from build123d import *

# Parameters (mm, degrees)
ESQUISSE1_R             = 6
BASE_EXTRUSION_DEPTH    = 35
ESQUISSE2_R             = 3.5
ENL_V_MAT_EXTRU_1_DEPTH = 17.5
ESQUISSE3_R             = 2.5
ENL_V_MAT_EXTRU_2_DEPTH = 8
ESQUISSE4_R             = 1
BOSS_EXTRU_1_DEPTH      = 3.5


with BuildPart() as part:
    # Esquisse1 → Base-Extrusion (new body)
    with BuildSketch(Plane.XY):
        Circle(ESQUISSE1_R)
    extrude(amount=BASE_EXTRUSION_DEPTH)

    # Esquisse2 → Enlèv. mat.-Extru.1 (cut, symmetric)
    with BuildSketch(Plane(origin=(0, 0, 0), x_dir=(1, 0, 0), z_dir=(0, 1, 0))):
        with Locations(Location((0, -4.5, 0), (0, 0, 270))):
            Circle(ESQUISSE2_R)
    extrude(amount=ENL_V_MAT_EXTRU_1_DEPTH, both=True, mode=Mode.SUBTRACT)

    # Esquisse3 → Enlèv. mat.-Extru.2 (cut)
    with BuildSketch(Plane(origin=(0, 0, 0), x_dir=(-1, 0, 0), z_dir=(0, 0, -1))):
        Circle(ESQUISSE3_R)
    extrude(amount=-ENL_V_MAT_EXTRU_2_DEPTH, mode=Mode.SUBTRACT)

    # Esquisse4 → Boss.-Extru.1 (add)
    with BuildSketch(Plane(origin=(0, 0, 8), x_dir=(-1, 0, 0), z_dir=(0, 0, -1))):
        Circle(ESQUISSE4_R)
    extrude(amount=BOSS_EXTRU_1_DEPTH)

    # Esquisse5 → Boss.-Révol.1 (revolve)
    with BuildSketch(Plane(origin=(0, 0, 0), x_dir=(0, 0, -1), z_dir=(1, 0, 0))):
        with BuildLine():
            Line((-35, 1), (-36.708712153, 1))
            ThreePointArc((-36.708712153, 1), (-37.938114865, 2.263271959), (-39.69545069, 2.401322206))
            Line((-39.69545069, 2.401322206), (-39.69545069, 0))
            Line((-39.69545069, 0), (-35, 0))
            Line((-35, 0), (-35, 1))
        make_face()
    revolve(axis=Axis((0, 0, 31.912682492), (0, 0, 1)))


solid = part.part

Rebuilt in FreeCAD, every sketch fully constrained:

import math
import FreeCAD as App
import Part
import Sketcher

doc = App.newDocument("Part")
params = doc.addObject("Spreadsheet::Sheet", "Params")
for row, (alias, value) in enumerate([
    ("sketch1_diameter", "12 mm"),
    ("pad1_length", "35 mm"),
    ("sketch2_diameter", "7 mm"),
    ("pocket1_length", "35 mm"),
    ("sketch3_diameter", "5 mm"),
    ("pocket2_length", "8 mm"),
    ("sketch4_diameter", "2 mm"),
    ("pad2_length", "3.5 mm"),
    ("sketch5_radius", "2.5 mm"),
    ("sketch5_width", "1 mm"),
    ("revolution_angle", "360 deg"),
], start=1):
    params.set(f"A{row}", alias)
    params.set(f"B{row}", "=" + value)
    params.setAlias(f"B{row}", alias)

body = doc.addObject("PartDesign::Body", "Body")

sketch1 = body.newObject("Sketcher::SketchObject", "Sketch")
sketch1.AttachmentSupport = (doc.getObject("XY_Plane"), [""])
sketch1.MapMode = "FlatFace"
sketch1.addGeometry(Part.Circle(App.Vector(0, 0, 0), App.Vector(0, 0, 1), 6), False)
sketch1.addConstraint(Sketcher.Constraint("Coincident", 0, 3, -1, 1))
sketch1.addConstraint(Sketcher.Constraint("Diameter", 0, 12.0))
sketch1.setExpression("Constraints[1]", "Params.sketch1_diameter")
pad1 = body.newObject("PartDesign::Pad", "Pad")
pad1.Profile = sketch1
pad1.setExpression("Length", "Params.pad1_length")

sketch2 = body.newObject("Sketcher::SketchObject", "Sketch001")
sketch2.AttachmentSupport = (doc.getObject("XZ_Plane"), [""])
sketch2.MapMode = "FlatFace"
sketch2.addGeometry(Part.Circle(App.Vector(0, 4.5, 0), App.Vector(0, 0, 1), 3.5), False)
sketch2.addConstraint(Sketcher.Constraint("PointOnObject", 0, 3, -2))
sketch2.addConstraint(Sketcher.Constraint("Diameter", 0, 7.0))
sketch2.addConstraint(Sketcher.Constraint("DistanceY", -1, 1, 0, 3, 4.5))
sketch2.setExpression("Constraints[1]", "Params.sketch2_diameter")
pocket1 = body.newObject("PartDesign::Pocket", "Pocket")
pocket1.Profile = sketch2
pocket1.setExpression("Length", "Params.pocket1_length")
pocket1.Midplane = True

sketch3 = body.newObject("Sketcher::SketchObject", "Sketch002")
sketch3.AttachmentSupport = (doc.getObject("XY_Plane"), [""])
sketch3.MapMode = "FlatFace"
sketch3.addGeometry(Part.Circle(App.Vector(0, 0, 0), App.Vector(0, 0, 1), 2.5), False)
sketch3.addConstraint(Sketcher.Constraint("Coincident", 0, 3, -1, 1))
sketch3.addConstraint(Sketcher.Constraint("Diameter", 0, 5.0))
sketch3.setExpression("Constraints[1]", "Params.sketch3_diameter")
pocket2 = body.newObject("PartDesign::Pocket", "Pocket001")
pocket2.Profile = sketch3
pocket2.setExpression("Length", "Params.pocket2_length")
pocket2.Reversed = True

sketch4 = body.newObject("Sketcher::SketchObject", "Sketch003")
sketch4.AttachmentSupport = (doc.getObject("XY_Plane"), [""])
sketch4.MapMode = "FlatFace"
sketch4.AttachmentOffset = App.Placement(App.Vector(0, 0, 8), App.Rotation())
sketch4.addGeometry(Part.Circle(App.Vector(0, 0, 0), App.Vector(0, 0, 1), 1), False)
sketch4.addConstraint(Sketcher.Constraint("Coincident", 0, 3, -1, 1))
sketch4.addConstraint(Sketcher.Constraint("Diameter", 0, 2.0))
sketch4.setExpression("Constraints[1]", "Params.sketch4_diameter")
pad2 = body.newObject("PartDesign::Pad", "Pad001")
pad2.Profile = sketch4
pad2.setExpression("Length", "Params.pad2_length")
pad2.Reversed = True

sketch5 = body.newObject("Sketcher::SketchObject", "Sketch004")
sketch5.AttachmentSupport = (doc.getObject("YZ_Plane"), [""])
sketch5.MapMode = "FlatFace"
sketch5.addGeometry(Part.LineSegment(App.Vector(1, 35, 0), App.Vector(1, 36.7, 0)), False)
sketch5.addGeometry(Part.ArcOfCircle(Part.Circle(App.Vector(0, 39, 0), App.Vector(0, 0, 1), 2.5), math.radians(-66), math.radians(16)), False)
sketch5.addGeometry(Part.LineSegment(App.Vector(2.4, 39.7, 0), App.Vector(0, 39.7, 0)), False)
sketch5.addGeometry(Part.LineSegment(App.Vector(0, 39.7, 0), App.Vector(0, 35, 0)), False)
sketch5.addGeometry(Part.LineSegment(App.Vector(0, 35, 0), App.Vector(1, 35, 0)), False)
sketch5.addConstraint(Sketcher.Constraint("Coincident", 0, 2, 1, 1))
sketch5.addConstraint(Sketcher.Constraint("Coincident", 1, 2, 2, 1))
sketch5.addConstraint(Sketcher.Constraint("Coincident", 2, 2, 3, 1))
sketch5.addConstraint(Sketcher.Constraint("Coincident", 3, 2, 4, 1))
sketch5.addConstraint(Sketcher.Constraint("Coincident", 4, 2, 0, 1))
sketch5.addConstraint(Sketcher.Constraint("Vertical", 0))
sketch5.addConstraint(Sketcher.Constraint("Horizontal", 2))
sketch5.addConstraint(Sketcher.Constraint("Vertical", 3))
sketch5.addConstraint(Sketcher.Constraint("Horizontal", 4))
sketch5.addConstraint(Sketcher.Constraint("PointOnObject", 1, 3, -2))
sketch5.addConstraint(Sketcher.Constraint("PointOnObject", 2, 2, -2))
sketch5.addConstraint(Sketcher.Constraint("Radius", 1, 2.5))
sketch5.addConstraint(Sketcher.Constraint("DistanceX", 4, 1, 4, 2, 1.0))
sketch5.addConstraint(Sketcher.Constraint("DistanceY", -1, 1, 1, 3, 39.0))
sketch5.addConstraint(Sketcher.Constraint("DistanceY", -1, 1, 3, 2, 35.0))
sketch5.addConstraint(Sketcher.Constraint("DistanceY", 3, 2, 3, 1, 4.695451))
sketch5.setExpression("Constraints[11]", "Params.sketch5_radius")
sketch5.setExpression("Constraints[12]", "Params.sketch5_width")
revolution = body.newObject("PartDesign::Revolution", "Revolution")
revolution.Profile = sketch5
revolution.ReferenceAxis = (sketch5, ["V_Axis"])
revolution.setExpression("Angle", "Params.revolution_angle")

doc.recompute()
